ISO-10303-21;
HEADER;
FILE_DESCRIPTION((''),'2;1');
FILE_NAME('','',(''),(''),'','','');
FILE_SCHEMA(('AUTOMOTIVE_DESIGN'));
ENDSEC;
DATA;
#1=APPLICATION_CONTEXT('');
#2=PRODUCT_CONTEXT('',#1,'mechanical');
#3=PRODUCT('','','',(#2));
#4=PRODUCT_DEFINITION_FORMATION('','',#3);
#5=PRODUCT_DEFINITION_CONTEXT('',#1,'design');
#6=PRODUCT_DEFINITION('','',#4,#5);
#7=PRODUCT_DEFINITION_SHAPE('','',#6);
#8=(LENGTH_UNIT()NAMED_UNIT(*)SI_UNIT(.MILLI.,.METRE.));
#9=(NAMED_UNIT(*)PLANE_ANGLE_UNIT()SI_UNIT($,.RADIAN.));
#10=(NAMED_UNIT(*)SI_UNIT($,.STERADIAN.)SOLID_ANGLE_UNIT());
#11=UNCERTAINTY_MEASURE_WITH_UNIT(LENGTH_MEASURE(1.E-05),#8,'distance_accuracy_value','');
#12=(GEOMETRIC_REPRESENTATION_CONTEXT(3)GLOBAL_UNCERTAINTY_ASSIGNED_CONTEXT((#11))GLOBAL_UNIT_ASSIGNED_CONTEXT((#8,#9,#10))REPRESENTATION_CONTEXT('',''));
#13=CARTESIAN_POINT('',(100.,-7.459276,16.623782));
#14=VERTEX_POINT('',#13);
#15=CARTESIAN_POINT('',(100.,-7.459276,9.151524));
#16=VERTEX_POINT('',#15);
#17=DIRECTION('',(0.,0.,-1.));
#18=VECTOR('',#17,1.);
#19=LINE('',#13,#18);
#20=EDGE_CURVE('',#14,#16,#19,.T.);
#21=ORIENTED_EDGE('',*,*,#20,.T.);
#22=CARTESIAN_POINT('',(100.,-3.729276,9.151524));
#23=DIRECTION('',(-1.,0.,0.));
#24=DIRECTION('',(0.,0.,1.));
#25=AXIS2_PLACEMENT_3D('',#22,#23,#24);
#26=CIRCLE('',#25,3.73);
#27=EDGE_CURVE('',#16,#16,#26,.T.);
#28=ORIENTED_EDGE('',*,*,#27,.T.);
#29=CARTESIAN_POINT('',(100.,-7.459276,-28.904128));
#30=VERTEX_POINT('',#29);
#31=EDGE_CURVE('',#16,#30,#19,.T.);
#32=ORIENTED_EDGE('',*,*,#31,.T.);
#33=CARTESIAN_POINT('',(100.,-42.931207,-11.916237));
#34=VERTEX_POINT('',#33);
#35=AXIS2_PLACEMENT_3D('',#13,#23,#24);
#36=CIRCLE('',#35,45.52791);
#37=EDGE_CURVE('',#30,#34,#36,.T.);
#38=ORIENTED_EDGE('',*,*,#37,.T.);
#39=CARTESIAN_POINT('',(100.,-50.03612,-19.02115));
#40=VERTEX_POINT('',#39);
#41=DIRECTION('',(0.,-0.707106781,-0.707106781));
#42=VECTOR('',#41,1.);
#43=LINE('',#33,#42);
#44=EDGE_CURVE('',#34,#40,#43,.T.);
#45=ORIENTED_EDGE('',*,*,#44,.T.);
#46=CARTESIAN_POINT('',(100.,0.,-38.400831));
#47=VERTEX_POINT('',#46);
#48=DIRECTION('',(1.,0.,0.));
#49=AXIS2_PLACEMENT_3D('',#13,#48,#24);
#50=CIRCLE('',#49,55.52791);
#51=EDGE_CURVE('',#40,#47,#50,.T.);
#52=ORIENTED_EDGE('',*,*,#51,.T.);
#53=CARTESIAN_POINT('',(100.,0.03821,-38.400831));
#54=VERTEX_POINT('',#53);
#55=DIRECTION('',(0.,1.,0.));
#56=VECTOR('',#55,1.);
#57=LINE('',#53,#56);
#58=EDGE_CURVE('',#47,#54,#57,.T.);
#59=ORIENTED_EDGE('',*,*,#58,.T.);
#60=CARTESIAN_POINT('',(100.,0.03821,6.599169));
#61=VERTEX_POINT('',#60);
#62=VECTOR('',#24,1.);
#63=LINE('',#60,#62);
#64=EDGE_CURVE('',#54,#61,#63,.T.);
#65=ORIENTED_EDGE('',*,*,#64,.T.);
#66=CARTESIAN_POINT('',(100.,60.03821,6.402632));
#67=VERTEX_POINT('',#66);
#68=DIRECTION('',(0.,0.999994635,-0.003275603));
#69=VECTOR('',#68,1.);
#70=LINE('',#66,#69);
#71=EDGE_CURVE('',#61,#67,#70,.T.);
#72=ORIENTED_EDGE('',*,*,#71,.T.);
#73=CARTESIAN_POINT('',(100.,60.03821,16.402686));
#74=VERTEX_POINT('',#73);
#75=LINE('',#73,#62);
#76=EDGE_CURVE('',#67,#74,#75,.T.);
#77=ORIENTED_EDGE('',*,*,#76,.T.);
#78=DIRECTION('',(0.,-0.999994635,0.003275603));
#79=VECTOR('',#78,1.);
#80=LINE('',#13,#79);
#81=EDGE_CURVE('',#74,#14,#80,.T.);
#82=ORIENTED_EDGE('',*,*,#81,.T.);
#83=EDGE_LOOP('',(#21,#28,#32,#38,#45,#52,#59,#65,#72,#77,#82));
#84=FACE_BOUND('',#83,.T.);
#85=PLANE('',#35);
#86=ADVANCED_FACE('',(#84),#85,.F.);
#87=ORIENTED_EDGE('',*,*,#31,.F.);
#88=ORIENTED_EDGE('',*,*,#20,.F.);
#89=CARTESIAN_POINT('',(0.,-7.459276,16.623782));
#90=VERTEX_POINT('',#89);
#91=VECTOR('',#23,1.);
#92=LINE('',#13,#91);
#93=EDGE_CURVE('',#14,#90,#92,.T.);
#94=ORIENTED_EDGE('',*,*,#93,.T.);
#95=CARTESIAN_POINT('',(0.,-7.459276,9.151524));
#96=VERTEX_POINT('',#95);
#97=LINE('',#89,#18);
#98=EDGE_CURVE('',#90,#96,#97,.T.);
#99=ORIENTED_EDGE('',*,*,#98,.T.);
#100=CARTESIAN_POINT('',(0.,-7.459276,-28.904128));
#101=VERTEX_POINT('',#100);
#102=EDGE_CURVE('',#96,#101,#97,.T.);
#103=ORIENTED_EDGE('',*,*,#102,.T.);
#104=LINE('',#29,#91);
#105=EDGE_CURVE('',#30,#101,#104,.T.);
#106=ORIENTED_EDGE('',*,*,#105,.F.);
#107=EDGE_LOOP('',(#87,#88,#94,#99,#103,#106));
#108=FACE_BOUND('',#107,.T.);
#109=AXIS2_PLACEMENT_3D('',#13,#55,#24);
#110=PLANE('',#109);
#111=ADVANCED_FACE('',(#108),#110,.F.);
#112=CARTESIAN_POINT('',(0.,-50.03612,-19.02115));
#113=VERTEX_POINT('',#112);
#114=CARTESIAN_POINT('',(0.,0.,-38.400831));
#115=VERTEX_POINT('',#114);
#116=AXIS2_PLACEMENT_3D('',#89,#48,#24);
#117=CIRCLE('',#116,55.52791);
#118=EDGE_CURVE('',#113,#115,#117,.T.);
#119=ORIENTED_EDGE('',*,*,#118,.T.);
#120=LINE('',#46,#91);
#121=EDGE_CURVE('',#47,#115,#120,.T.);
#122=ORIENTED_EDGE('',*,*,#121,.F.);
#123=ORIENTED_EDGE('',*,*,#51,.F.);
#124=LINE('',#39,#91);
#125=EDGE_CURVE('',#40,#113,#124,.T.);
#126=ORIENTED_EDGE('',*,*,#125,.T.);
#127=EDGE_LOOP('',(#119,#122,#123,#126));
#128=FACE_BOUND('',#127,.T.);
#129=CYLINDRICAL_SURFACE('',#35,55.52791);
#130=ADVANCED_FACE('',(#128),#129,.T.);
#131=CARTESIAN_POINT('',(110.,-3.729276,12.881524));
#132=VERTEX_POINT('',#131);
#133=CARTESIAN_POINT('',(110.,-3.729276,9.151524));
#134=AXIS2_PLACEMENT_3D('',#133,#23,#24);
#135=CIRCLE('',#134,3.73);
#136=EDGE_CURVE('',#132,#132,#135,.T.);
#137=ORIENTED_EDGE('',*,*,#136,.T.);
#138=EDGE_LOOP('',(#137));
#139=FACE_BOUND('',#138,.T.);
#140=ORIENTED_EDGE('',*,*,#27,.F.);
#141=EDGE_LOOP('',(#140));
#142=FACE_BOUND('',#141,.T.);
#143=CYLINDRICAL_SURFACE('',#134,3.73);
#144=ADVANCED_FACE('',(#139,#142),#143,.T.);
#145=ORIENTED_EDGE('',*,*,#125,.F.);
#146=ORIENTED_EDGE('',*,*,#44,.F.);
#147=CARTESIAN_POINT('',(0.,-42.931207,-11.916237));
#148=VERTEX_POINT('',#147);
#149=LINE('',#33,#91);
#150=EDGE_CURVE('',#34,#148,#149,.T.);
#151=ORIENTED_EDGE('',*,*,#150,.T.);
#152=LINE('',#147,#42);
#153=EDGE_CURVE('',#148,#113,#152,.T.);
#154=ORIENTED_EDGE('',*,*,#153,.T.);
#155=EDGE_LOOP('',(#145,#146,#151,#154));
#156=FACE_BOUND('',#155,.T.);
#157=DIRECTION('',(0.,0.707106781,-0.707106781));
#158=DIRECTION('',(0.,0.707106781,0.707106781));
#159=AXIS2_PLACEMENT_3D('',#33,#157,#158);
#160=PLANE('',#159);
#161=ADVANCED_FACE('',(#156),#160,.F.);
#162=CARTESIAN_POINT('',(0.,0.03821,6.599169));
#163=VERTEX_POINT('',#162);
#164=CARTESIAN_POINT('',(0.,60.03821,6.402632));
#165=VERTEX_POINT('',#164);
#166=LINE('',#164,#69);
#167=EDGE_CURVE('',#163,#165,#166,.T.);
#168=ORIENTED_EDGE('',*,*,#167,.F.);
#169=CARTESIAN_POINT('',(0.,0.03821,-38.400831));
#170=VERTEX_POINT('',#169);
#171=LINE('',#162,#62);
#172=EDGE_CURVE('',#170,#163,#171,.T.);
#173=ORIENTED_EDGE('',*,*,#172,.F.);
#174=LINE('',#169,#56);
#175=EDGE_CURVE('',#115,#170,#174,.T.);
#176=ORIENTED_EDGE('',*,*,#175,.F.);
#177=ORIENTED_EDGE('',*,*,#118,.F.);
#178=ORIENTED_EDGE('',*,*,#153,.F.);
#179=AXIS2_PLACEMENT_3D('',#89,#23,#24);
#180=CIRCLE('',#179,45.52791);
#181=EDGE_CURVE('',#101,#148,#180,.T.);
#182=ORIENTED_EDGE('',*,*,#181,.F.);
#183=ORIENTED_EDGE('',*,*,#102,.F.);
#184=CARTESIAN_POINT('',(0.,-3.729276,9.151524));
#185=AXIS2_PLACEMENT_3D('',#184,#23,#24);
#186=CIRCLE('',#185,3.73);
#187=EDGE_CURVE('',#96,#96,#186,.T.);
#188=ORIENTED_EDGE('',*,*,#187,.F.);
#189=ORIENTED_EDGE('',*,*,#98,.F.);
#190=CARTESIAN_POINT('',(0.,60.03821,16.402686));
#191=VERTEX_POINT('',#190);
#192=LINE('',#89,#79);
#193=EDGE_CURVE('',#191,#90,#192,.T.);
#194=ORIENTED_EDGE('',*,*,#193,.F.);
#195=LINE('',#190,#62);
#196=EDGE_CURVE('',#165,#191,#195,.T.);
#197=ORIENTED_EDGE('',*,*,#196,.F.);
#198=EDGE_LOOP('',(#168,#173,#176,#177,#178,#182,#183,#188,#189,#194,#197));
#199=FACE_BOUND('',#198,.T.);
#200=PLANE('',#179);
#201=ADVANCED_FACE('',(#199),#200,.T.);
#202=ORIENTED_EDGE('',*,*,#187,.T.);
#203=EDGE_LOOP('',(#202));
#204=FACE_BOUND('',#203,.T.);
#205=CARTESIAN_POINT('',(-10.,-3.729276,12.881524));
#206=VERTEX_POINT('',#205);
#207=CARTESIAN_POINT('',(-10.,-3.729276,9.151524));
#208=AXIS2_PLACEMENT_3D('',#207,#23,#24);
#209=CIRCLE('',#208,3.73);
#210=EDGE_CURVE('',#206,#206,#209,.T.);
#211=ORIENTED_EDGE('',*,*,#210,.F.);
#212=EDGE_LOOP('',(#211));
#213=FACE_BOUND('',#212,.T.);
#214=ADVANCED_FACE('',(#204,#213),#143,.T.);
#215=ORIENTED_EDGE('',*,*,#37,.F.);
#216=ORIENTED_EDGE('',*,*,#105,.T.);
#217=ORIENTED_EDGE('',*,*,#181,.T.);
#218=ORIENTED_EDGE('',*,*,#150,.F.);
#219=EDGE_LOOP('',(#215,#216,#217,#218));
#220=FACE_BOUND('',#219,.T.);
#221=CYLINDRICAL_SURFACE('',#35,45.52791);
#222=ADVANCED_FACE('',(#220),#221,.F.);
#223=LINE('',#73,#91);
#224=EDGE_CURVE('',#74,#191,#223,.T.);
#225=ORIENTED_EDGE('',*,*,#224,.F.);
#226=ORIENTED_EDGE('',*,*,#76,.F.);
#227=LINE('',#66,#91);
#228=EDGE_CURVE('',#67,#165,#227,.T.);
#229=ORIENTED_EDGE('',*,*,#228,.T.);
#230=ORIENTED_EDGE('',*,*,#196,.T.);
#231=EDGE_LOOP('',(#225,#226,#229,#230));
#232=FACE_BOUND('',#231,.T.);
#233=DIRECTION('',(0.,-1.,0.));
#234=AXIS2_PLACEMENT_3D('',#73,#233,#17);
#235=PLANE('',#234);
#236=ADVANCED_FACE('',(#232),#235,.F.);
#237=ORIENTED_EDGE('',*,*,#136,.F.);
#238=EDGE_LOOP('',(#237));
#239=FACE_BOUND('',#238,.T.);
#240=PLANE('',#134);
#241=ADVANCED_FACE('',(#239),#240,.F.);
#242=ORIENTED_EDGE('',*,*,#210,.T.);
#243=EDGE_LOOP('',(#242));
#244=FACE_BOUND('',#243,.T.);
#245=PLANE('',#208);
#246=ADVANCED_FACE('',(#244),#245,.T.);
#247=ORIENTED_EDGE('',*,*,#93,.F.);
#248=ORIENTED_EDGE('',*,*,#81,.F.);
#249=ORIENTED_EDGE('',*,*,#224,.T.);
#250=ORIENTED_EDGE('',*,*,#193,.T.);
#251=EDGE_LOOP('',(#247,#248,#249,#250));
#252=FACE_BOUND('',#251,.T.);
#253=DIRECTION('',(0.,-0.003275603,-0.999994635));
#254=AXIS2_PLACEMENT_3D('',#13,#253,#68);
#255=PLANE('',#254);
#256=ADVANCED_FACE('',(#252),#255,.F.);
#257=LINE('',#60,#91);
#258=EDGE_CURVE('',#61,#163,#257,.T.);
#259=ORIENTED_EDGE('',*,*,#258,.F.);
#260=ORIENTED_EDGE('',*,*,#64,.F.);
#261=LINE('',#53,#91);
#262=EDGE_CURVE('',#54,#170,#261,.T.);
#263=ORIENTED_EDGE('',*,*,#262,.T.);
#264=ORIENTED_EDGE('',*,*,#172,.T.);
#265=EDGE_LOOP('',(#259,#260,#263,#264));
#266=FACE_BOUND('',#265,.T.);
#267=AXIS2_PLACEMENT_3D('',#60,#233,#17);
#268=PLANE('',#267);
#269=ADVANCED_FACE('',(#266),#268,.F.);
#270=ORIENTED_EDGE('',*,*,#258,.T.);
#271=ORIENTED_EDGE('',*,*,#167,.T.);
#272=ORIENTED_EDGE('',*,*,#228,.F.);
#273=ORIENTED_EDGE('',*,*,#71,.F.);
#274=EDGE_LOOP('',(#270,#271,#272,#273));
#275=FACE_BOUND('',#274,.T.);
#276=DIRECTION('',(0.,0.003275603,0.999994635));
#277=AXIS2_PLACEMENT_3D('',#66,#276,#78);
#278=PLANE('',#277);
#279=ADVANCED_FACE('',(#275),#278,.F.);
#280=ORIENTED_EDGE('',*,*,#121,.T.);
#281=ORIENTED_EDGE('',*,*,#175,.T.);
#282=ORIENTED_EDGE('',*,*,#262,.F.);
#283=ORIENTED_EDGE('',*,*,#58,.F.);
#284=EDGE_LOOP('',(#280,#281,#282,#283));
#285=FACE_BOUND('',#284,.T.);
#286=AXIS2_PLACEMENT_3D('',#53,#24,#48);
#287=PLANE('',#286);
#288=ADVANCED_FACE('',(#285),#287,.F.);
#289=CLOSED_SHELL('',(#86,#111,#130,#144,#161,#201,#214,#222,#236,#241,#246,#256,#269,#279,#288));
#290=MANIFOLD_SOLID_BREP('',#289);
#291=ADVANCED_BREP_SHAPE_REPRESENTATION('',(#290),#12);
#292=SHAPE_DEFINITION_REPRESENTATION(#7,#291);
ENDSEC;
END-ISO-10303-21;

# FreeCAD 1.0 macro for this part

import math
import FreeCAD as App
import Part
import Sketcher
Q = App.Units.Quantity

doc = App.newDocument("Part")
body = doc.addObject("PartDesign::Body", "Body")

# Sketch on YZ plane
sketch1 = body.newObject("Sketcher::SketchObject", "Sketch")
sketch1.AttachmentSupport = (doc.getObject("YZ_Plane"), [""])
sketch1.MapMode = "FlatFace"
sketch1.addGeometry([
    Part.LineSegment(App.Vector(-42.931, -11.916, 0), App.Vector(-50.036, -19.021, 0)),  # 0
    Part.ArcOfCircle(Part.Circle(App.Vector(-7.459, 16.624, 0), App.Vector(0, 0, 1), 55.528), math.radians(-140), math.radians(-82)),  # 1
    Part.LineSegment(App.Vector(0, -38.401, 0), App.Vector(0.038, -38.401, 0)),  # 2
    Part.LineSegment(App.Vector(0.038, -38.401, 0), App.Vector(0.038, 6.599, 0)),  # 3
    Part.LineSegment(App.Vector(0.038, 6.599, 0), App.Vector(60.038, 6.403, 0)),  # 4
    Part.LineSegment(App.Vector(60.038, 6.403, 0), App.Vector(60.038, 16.403, 0)),  # 5
    Part.LineSegment(App.Vector(60.038, 16.403, 0), App.Vector(-7.459, 16.624, 0)),  # 6
    Part.LineSegment(App.Vector(-7.459, 16.624, 0), App.Vector(-7.459, -28.904, 0)),  # 7
    Part.ArcOfCircle(Part.Circle(App.Vector(-7.459, 16.624, 0), App.Vector(0, 0, 1), 45.528), math.radians(-141), math.radians(-90)),  # 8
], False)
sketch1.addConstraint([
    Sketcher.Constraint("Coincident", 0, 2, 1, 1),
    Sketcher.Constraint("Coincident", 1, 2, 2, 1),
    Sketcher.Constraint("Coincident", 2, 2, 3, 1),
    Sketcher.Constraint("Coincident", 3, 2, 4, 1),
    Sketcher.Constraint("Coincident", 4, 2, 5, 1),
    Sketcher.Constraint("Coincident", 5, 2, 6, 1),
    Sketcher.Constraint("Coincident", 6, 2, 7, 1),
    Sketcher.Constraint("Coincident", 7, 2, 8, 2),
    Sketcher.Constraint("Coincident", 8, 1, 0, 1),
    Sketcher.Constraint("Horizontal", 2),
    Sketcher.Constraint("Vertical", 3),
    Sketcher.Constraint("Vertical", 5),
    Sketcher.Constraint("Vertical", 7),
    Sketcher.Constraint("Coincident", 8, 3, 1, 3),
    Sketcher.Constraint("Coincident", 6, 2, 1, 3),
    Sketcher.Constraint("PointOnObject", 1, 2, -2),
    Sketcher.Constraint("Parallel", 4, 6),
    Sketcher.Constraint("DistanceY", 3, 1, 3, 2, 45.0),
    Sketcher.Constraint("Angle", 0, Q("-135 deg")),
    Sketcher.Constraint("DistanceX", 3, 2, 4, 2, 60.0),
    Sketcher.Constraint("Radius", 1, 55.52791),
    Sketcher.Constraint("Radius", 8, 45.52791),
    Sketcher.Constraint("DistanceX", 2, 1, 2, 2, 0.03821),
    Sketcher.Constraint("DistanceY", 5, 1, 5, 2, 10.000054),
    Sketcher.Constraint("DistanceY", -1, 1, 1, 3, 16.623782),
    Sketcher.Constraint("DistanceX", 0, 2, -1, 1, 50.03612),
    Sketcher.Constraint("DistanceY", 0, 2, -1, 1, 19.02115),
])
pad1 = body.newObject("PartDesign::Pad", "Pad")
pad1.Profile = sketch1
pad1.Length = 100

# Sketch on YZ plane
sketch2 = body.newObject("Sketcher::SketchObject", "Sketch001")
sketch2.AttachmentSupport = (doc.getObject("YZ_Plane"), [""])
sketch2.MapMode = "FlatFace"
sketch2.addGeometry(Part.Circle(App.Vector(-3.7, 9.2, 0), App.Vector(0, 0, 1), 3.7), False)
sketch2.addConstraint([
    Sketcher.Constraint("Diameter", 0, 7.46),
    Sketcher.Constraint("DistanceX", 0, 3, -1, 1, 3.729276),
    Sketcher.Constraint("DistanceY", -1, 1, 0, 3, 9.151524),
])
pad2 = body.newObject("PartDesign::Pad", "Pad001")
pad2.Profile = sketch2
pad2.Type = "TwoLengths"
pad2.Length = 10
pad2.Length2 = 110
pad2.Reversed = True

doc.recompute()
